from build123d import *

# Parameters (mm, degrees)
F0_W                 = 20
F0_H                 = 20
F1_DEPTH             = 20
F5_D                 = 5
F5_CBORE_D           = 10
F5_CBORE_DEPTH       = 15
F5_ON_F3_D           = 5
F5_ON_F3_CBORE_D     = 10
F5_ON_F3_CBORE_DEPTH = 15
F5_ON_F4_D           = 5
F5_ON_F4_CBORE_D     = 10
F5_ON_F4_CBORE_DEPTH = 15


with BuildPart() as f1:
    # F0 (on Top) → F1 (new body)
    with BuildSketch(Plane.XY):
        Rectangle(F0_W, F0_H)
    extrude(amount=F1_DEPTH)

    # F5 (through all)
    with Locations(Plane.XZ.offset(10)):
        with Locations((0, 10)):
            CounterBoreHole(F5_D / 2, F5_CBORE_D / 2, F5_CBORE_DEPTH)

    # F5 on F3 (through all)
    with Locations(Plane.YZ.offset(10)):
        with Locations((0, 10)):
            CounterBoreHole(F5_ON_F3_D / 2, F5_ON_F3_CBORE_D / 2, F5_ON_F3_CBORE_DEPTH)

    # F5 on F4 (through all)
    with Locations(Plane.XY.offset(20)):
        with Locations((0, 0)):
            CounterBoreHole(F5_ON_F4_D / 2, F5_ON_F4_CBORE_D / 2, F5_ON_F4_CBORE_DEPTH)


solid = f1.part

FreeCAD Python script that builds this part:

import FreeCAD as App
import Part
import Sketcher
from FreeCAD import Vector
Q = App.Units.Quantity

doc = App.newDocument("Part")
body = doc.addObject("PartDesign::Body", "Body")

sketch1 = doc.addObject("Sketcher::SketchObject", "Sketch")
body.addObject(sketch1)
sketch1.AttachmentSupport = (doc.XY_Plane, [""])
sketch1.MapMode = "FlatFace"
sketch1.addGeometry(Part.LineSegment(Vector(-10, 10, 0), Vector(-10, -10, 0)), False)
sketch1.addGeometry(Part.LineSegment(Vector(-10, -10, 0), Vector(10, -10, 0)), False)
sketch1.addGeometry(Part.LineSegment(Vector(10, -10, 0), Vector(10, 10, 0)), False)
sketch1.addGeometry(Part.LineSegment(Vector(10, 10, 0), Vector(-10, 10, 0)), False)
sketch1.addConstraint(Sketcher.Constraint("Coincident", 0, 2, 1, 1))
sketch1.addConstraint(Sketcher.Constraint("Coincident", 1, 2, 2, 1))
sketch1.addConstraint(Sketcher.Constraint("Coincident", 2, 2, 3, 1))
sketch1.addConstraint(Sketcher.Constraint("Coincident", 3, 2, 0, 1))
sketch1.addConstraint(Sketcher.Constraint("Vertical", 0))
sketch1.addConstraint(Sketcher.Constraint("Horizontal", 1))
sketch1.addConstraint(Sketcher.Constraint("Vertical", 2))
sketch1.addConstraint(Sketcher.Constraint("Horizontal", 3))
sketch1.addConstraint(Sketcher.Constraint("Symmetric", 0, 2, 2, 2, -1, 1))
sketch1.addConstraint(Sketcher.Constraint("Equal", 3, 0))
sketch1.addConstraint(Sketcher.Constraint("DistanceX", 1, 1, 1, 2, Q("20 mm")))
pad1 = doc.addObject("PartDesign::Pad", "Pad")
body.addObject(pad1)
pad1.Profile = sketch1
pad1.Length = 20

sketch2 = doc.addObject("Sketcher::SketchObject", "Sketch001")
body.addObject(sketch2)
sketch2.AttachmentSupport = (doc.XZ_Plane, [""])
sketch2.MapMode = "FlatFace"
sketch2.AttachmentOffset = App.Placement(Vector(0, 0, 10), App.Rotation())
sketch2.addGeometry(Part.Circle(Vector(0, 10, 0), Vector(0, 0, 1), 2.5), False)
sketch2.addConstraint(Sketcher.Constraint("PointOnObject", 0, 3, -2))
sketch2.addConstraint(Sketcher.Constraint("Diameter", 0, Q("5 mm")))
sketch2.addConstraint(Sketcher.Constraint("DistanceY", -1, 1, 0, 3, Q("10 mm")))
doc.recompute()
hole = doc.addObject("PartDesign::Hole", "Hole")
body.addObject(hole)
hole.Profile = sketch2
hole.ThreadType = "None"
hole.Diameter = 5
hole.DepthType = "ThroughAll"
hole.HoleCutType = "Counterbore"
hole.HoleCutDiameter = 10
hole.HoleCutDepth = 15

sketch3 = doc.addObject("Sketcher::SketchObject", "Sketch002")
body.addObject(sketch3)
sketch3.AttachmentSupport = (doc.YZ_Plane, [""])
sketch3.MapMode = "FlatFace"
sketch3.AttachmentOffset = App.Placement(Vector(0, 0, 10), App.Rotation())
sketch3.addGeometry(Part.Circle(Vector(0, 10, 0), Vector(0, 0, 1), 2.5), False)
sketch3.addConstraint(Sketcher.Constraint("PointOnObject", 0, 3, -2))
sketch3.addConstraint(Sketcher.Constraint("Diameter", 0, Q("5 mm")))
sketch3.addConstraint(Sketcher.Constraint("DistanceY", -1, 1, 0, 3, Q("10 mm")))
doc.recompute()
hole2 = doc.addObject("PartDesign::Hole", "Hole001")
body.addObject(hole2)
hole2.Profile = sketch3
hole2.ThreadType = "None"
hole2.Diameter = 5
hole2.DepthType = "ThroughAll"
hole2.HoleCutType = "Counterbore"
hole2.HoleCutDiameter = 10
hole2.HoleCutDepth = 15

sketch4 = doc.addObject("Sketcher::SketchObject", "Sketch003")
body.addObject(sketch4)
sketch4.AttachmentSupport = (doc.XY_Plane, [""])
sketch4.MapMode = "FlatFace"
sketch4.AttachmentOffset = App.Placement(Vector(0, 0, 20), App.Rotation())
sketch4.addGeometry(Part.Circle(Vector(0, 0, 0), Vector(0, 0, 1), 2.5), False)
sketch4.addConstraint(Sketcher.Constraint("Coincident", 0, 3, -1, 1))
sketch4.addConstraint(Sketcher.Constraint("Diameter", 0, Q("5 mm")))
doc.recompute()
hole3 = doc.addObject("PartDesign::Hole", "Hole002")
body.addObject(hole3)
hole3.Profile = sketch4
hole3.ThreadType = "None"
hole3.Diameter = 5
hole3.DepthType = "ThroughAll"
hole3.HoleCutType = "Counterbore"
hole3.HoleCutDiameter = 10
hole3.HoleCutDepth = 15

doc.recompute()
